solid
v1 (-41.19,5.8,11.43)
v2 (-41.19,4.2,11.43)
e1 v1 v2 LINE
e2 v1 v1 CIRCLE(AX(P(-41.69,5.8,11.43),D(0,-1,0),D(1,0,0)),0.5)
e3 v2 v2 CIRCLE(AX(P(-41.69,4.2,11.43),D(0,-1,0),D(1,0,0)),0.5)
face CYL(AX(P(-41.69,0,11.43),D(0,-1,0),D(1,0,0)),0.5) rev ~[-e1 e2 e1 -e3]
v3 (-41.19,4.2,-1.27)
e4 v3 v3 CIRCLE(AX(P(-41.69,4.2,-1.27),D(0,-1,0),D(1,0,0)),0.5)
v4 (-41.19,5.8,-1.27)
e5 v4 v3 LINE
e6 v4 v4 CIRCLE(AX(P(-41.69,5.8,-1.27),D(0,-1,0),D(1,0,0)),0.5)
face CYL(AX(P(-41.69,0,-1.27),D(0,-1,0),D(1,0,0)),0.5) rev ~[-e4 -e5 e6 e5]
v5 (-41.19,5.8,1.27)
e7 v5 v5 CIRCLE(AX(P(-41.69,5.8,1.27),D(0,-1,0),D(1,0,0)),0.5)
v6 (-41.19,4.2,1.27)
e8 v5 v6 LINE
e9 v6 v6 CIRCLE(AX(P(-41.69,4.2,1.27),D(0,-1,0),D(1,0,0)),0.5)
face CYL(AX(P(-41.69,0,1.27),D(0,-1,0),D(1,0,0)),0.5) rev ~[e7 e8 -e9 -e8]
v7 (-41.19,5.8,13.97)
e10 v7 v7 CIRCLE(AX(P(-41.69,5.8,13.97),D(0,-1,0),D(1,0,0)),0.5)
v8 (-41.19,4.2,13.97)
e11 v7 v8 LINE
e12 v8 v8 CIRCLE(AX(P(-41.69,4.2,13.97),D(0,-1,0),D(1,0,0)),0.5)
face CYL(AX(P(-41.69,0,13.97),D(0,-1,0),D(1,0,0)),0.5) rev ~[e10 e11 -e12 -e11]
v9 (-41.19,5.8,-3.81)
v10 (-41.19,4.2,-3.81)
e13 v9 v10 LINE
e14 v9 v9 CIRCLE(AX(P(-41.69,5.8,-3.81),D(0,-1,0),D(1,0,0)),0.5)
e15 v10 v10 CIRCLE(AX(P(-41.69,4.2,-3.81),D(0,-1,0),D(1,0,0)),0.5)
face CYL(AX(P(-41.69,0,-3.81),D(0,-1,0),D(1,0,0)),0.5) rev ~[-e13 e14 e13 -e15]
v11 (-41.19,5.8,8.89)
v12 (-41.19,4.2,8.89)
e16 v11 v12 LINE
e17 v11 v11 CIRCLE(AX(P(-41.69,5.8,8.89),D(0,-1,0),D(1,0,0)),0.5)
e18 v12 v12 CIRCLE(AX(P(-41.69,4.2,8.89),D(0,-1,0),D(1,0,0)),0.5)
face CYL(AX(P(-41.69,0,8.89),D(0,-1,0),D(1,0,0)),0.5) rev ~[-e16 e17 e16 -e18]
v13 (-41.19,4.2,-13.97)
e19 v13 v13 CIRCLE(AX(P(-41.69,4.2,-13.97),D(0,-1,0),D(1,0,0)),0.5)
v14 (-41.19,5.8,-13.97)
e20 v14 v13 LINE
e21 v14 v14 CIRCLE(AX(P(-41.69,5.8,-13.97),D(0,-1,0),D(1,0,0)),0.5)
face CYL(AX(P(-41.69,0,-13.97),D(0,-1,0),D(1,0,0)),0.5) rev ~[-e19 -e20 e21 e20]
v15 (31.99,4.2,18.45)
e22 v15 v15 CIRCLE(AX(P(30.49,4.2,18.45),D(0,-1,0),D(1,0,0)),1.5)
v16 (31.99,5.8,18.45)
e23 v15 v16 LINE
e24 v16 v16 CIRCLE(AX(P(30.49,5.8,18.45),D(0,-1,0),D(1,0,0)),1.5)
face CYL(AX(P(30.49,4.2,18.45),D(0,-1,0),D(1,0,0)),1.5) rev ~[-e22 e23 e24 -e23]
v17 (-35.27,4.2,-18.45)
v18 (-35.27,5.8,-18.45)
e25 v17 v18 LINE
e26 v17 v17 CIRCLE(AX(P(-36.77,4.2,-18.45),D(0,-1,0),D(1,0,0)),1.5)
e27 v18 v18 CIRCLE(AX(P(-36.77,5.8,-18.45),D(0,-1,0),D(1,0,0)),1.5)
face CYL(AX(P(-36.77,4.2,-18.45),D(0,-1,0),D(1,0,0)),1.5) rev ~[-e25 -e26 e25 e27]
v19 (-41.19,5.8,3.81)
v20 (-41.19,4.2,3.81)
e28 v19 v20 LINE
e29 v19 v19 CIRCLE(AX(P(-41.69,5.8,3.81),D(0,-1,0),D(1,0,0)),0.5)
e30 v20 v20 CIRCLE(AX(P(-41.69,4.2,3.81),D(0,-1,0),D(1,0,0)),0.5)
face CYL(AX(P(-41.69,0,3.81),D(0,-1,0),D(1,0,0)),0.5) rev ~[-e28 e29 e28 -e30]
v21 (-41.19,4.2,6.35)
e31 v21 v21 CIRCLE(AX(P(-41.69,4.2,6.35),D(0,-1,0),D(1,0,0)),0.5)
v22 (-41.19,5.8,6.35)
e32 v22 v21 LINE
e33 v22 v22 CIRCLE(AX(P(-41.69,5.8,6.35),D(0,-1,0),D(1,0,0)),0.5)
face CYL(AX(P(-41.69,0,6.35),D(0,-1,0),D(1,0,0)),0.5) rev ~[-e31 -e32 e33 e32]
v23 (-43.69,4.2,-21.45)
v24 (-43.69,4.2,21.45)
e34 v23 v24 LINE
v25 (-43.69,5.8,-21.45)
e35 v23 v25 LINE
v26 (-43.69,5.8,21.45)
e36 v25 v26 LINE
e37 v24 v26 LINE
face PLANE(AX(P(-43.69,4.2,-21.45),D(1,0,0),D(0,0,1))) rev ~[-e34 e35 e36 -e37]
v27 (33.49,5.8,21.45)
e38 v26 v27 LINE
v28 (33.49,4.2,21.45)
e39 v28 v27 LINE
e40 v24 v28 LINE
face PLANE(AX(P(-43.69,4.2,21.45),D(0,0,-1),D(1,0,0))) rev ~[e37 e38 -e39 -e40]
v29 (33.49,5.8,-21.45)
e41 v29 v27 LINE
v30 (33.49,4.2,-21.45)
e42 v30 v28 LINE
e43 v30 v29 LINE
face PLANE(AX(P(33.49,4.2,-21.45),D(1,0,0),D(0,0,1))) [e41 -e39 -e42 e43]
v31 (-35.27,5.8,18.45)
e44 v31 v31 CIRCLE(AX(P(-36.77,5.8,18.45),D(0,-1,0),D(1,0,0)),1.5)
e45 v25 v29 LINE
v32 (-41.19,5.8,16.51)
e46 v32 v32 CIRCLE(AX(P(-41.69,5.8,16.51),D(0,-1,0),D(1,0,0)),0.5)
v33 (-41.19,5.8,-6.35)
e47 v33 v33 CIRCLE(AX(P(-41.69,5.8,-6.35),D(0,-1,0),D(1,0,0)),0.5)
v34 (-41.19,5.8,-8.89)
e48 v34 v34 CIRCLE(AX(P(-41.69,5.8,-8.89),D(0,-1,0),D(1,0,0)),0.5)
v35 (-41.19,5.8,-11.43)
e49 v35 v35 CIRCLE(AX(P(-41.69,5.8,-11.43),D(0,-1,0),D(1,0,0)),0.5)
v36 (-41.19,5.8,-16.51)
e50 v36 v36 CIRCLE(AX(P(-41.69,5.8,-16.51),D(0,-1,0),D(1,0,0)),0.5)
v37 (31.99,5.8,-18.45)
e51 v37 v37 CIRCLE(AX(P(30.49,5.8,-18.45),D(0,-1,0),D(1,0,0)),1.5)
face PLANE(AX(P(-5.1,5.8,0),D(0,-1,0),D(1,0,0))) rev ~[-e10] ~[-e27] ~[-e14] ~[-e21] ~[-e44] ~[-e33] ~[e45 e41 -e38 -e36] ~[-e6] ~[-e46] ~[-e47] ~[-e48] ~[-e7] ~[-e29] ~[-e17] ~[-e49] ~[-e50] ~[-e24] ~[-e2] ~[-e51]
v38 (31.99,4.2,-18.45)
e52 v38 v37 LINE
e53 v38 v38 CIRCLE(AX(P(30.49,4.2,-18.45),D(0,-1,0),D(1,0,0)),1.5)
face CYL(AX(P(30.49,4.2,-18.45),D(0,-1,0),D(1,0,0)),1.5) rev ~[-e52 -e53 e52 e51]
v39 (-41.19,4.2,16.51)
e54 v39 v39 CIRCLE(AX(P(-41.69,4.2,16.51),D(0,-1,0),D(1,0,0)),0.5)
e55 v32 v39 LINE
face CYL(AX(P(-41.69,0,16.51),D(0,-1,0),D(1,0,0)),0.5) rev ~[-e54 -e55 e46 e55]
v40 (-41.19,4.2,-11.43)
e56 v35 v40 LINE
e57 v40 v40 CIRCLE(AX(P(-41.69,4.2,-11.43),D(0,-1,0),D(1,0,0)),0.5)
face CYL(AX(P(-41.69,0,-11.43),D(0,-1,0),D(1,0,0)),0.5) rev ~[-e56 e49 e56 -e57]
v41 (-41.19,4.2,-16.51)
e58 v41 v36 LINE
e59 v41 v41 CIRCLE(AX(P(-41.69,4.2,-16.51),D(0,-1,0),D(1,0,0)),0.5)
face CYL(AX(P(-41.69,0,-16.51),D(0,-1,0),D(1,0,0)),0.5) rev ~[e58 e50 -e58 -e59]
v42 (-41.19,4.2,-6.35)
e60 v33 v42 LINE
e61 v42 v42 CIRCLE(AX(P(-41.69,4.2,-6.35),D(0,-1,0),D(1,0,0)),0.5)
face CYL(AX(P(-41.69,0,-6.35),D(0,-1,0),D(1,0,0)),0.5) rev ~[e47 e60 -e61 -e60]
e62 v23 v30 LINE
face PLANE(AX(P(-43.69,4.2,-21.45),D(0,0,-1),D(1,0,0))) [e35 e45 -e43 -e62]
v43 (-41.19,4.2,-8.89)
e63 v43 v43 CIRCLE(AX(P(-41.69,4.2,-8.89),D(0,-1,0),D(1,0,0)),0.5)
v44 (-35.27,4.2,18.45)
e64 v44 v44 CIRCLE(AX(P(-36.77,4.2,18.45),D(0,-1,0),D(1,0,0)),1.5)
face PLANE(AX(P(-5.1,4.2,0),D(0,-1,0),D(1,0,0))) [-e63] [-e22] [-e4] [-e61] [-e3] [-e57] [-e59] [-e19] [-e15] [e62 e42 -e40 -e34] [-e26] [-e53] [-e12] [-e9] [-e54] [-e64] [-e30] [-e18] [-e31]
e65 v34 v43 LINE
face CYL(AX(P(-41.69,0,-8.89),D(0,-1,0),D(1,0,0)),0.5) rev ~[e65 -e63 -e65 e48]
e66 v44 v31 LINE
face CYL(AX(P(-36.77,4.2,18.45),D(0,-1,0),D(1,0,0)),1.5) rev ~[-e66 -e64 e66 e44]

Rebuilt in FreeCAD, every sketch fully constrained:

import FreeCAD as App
import Part
import Sketcher
from FreeCAD import Vector
Q = App.Units.Quantity


def add_polygon(sketch, points):
    """Adds a closed chain of lines whose ends are joined by coincident constraints."""
    first, n = sketch.GeometryCount, len(points)
    for a, b in zip(points, points[1:] + points[:1]):
        sketch.addGeometry(Part.LineSegment(App.Vector(*a, 0), App.Vector(*b, 0)), False)
    for i in range(n):
        sketch.addConstraint(Sketcher.Constraint("Coincident", first + i, 2, first + (i + 1) % n, 1))

doc = App.newDocument("Part")
body = doc.addObject("PartDesign::Body", "Body")

# Sketch on XZ plane
sketch1 = doc.addObject("Sketcher::SketchObject", "Sketch")
body.addObject(sketch1)
sketch1.AttachmentSupport = (doc.XZ_Plane, [""])
sketch1.MapMode = "FlatFace"
sketch1.AttachmentOffset = App.Placement(Vector(0, 0, -4.2), App.Rotation())
add_polygon(sketch1, [(-43.69, 21.45), (-43.69, -21.45), (33.49, -21.45), (33.49, 21.45)])  # lines 0-3
sketch1.addGeometry(Part.Circle(Vector(-36.77, -18.45, 0), Vector(0, 0, 1), 1.5), False)  # 4
sketch1.addGeometry(Part.Circle(Vector(30.49, -18.45, 0), Vector(0, 0, 1), 1.5), False)  # 5
sketch1.addGeometry(Part.Circle(Vector(-36.77, 18.45, 0), Vector(0, 0, 1), 1.5), False)  # 6
sketch1.addGeometry(Part.Circle(Vector(30.49, 18.45, 0), Vector(0, 0, 1), 1.5), False)  # 7
sketch1.addConstraint(Sketcher.Constraint("Vertical", 0))
sketch1.addConstraint(Sketcher.Constraint("Horizontal", 1))
sketch1.addConstraint(Sketcher.Constraint("Vertical", 2))
sketch1.addConstraint(Sketcher.Constraint("Horizontal", 3))
sketch1.addConstraint(Sketcher.Constraint("Equal", 4, 5))
sketch1.addConstraint(Sketcher.Constraint("Equal", 5, 6))
sketch1.addConstraint(Sketcher.Constraint("Equal", 6, 7))
sketch1.addConstraint(Sketcher.Constraint("Symmetric", 4, 3, 6, 3, -1))
sketch1.addConstraint(Sketcher.Constraint("Symmetric", 5, 3, 7, 3, -1))
sketch1.addConstraint(Sketcher.Constraint("Horizontal", 4, 3, 5, 3))
sketch1.addConstraint(Sketcher.Constraint("Diameter", 4, Q("3 mm")))
sketch1.addConstraint(Sketcher.Constraint("DistanceY", 0, 2, 0, 1, Q("42.9 mm")))
sketch1.addConstraint(Sketcher.Constraint("DistanceY", 0, 2, 4, 3, Q("3 mm")))
sketch1.addConstraint(Sketcher.Constraint("DistanceX", 5, 3, 1, 2, Q("3 mm")))
sketch1.addConstraint(Sketcher.Constraint("DistanceY", 7, 3, 2, 2, Q("3 mm")))
sketch1.addConstraint(Sketcher.Constraint("DistanceX", 1, 1, 1, 2, Q("77.18 mm")))
sketch1.addConstraint(Sketcher.Constraint("DistanceX", 4, 3, -1, 1, Q("36.77 mm")))
sketch1.addConstraint(Sketcher.Constraint("DistanceX", -1, 1, 5, 3, Q("30.49 mm")))
pad1 = doc.addObject("PartDesign::Pad", "Pad")
body.addObject(pad1)
pad1.Profile = sketch1
pad1.Length = 1.6
pad1.Reversed = True

# Sketch on XZ plane
sketch2 = doc.addObject("Sketcher::SketchObject", "Sketch001")
body.addObject(sketch2)
sketch2.AttachmentSupport = (doc.XZ_Plane, [""])
sketch2.MapMode = "FlatFace"
sketch2.addGeometry(Part.Circle(Vector(-41.69, -16.51, 0), Vector(0, 0, 1), 0.5), False)
sketch2.addConstraint(Sketcher.Constraint("Diameter", 0, Q("1 mm")))
sketch2.addConstraint(Sketcher.Constraint("DistanceX", 0, 3, -1, 1, Q("41.69 mm")))
sketch2.addConstraint(Sketcher.Constraint("DistanceY", 0, 3, -1, 1, Q("16.51 mm")))
pocket1 = doc.addObject("PartDesign::Pocket", "Pocket")
body.addObject(pocket1)
pocket1.Profile = sketch2
pocket1.Type = "ThroughAll"
pocket1.Midplane = True
doc.recompute()

linearpattern = doc.addObject("PartDesign::LinearPattern", "LinearPattern")
body.addObject(linearpattern)
linearpattern.Originals = [pocket1]
linearpattern.Direction = (doc.Z_Axis, [""])
linearpattern.Mode = "offset"
linearpattern.Offset = 2.54
linearpattern.Occurrences = 14
body.Tip = linearpattern

doc.recompute()
